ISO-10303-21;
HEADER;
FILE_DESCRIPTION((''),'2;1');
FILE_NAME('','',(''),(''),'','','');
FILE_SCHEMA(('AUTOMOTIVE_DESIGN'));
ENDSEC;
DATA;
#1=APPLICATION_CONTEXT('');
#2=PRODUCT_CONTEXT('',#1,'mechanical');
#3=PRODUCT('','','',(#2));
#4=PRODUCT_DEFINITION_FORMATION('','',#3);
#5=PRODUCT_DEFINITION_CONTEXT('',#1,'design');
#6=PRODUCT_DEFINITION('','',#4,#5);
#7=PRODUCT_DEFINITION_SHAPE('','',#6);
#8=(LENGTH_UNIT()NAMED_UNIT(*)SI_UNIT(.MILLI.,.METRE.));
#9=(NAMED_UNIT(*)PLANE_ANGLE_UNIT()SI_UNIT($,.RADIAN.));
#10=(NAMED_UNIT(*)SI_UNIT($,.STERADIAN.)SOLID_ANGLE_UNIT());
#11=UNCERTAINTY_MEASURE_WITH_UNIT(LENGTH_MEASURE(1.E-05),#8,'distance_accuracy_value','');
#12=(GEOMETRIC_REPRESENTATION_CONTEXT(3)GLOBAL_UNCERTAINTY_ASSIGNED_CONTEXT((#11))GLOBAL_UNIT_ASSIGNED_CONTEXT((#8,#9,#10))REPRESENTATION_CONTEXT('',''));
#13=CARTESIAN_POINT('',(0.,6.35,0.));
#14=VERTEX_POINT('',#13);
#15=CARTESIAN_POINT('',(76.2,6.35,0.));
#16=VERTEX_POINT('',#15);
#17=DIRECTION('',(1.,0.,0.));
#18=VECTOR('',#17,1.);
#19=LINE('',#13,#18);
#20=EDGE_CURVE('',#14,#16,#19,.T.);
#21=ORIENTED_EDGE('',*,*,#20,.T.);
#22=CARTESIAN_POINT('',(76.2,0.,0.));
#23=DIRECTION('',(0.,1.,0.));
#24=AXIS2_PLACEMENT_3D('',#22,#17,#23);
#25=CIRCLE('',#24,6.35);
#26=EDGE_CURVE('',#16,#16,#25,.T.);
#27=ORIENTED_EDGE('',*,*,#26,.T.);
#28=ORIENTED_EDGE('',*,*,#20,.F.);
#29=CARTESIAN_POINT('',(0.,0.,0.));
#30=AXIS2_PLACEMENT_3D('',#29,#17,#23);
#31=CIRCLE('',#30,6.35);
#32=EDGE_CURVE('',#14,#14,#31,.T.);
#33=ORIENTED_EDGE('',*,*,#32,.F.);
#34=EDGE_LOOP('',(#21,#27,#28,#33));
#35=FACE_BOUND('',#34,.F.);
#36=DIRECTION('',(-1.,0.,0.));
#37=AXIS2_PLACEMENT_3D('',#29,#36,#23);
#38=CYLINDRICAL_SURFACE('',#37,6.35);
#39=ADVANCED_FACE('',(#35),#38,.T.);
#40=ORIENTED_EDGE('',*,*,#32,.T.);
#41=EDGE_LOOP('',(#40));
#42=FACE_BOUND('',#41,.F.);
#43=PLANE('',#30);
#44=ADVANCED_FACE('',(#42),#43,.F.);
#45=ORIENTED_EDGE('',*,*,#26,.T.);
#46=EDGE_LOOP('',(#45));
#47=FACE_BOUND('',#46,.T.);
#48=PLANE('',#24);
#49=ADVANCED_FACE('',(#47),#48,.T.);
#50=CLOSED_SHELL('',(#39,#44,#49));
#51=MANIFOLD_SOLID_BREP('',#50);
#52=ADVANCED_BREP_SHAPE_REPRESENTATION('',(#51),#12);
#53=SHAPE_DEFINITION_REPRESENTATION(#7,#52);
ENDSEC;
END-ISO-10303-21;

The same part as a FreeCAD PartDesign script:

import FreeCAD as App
import Part
import Sketcher
Q = App.Units.Quantity

doc = App.newDocument("Part")
body = doc.addObject("PartDesign::Body", "Body")

# Sketch on YZ plane
sketch1 = doc.addObject("Sketcher::SketchObject", "Sketch")
body.addObject(sketch1)
sketch1.AttachmentSupport = (doc.YZ_Plane, [""])
sketch1.MapMode = "FlatFace"
sketch1.addGeometry(Part.Circle(App.Vector(0, 0, 0), App.Vector(0, 0, 1), 6), False)
sketch1.addConstraint([
    Sketcher.Constraint("Coincident", 0, 3, -1, 1),
    Sketcher.Constraint("Diameter", 0, Q("0.5 in")),
])
pad1 = doc.addObject("PartDesign::Pad", "Pad")
body.addObject(pad1)
pad1.Profile = sketch1
pad1.Length = Q("3 in")

doc.recompute()
